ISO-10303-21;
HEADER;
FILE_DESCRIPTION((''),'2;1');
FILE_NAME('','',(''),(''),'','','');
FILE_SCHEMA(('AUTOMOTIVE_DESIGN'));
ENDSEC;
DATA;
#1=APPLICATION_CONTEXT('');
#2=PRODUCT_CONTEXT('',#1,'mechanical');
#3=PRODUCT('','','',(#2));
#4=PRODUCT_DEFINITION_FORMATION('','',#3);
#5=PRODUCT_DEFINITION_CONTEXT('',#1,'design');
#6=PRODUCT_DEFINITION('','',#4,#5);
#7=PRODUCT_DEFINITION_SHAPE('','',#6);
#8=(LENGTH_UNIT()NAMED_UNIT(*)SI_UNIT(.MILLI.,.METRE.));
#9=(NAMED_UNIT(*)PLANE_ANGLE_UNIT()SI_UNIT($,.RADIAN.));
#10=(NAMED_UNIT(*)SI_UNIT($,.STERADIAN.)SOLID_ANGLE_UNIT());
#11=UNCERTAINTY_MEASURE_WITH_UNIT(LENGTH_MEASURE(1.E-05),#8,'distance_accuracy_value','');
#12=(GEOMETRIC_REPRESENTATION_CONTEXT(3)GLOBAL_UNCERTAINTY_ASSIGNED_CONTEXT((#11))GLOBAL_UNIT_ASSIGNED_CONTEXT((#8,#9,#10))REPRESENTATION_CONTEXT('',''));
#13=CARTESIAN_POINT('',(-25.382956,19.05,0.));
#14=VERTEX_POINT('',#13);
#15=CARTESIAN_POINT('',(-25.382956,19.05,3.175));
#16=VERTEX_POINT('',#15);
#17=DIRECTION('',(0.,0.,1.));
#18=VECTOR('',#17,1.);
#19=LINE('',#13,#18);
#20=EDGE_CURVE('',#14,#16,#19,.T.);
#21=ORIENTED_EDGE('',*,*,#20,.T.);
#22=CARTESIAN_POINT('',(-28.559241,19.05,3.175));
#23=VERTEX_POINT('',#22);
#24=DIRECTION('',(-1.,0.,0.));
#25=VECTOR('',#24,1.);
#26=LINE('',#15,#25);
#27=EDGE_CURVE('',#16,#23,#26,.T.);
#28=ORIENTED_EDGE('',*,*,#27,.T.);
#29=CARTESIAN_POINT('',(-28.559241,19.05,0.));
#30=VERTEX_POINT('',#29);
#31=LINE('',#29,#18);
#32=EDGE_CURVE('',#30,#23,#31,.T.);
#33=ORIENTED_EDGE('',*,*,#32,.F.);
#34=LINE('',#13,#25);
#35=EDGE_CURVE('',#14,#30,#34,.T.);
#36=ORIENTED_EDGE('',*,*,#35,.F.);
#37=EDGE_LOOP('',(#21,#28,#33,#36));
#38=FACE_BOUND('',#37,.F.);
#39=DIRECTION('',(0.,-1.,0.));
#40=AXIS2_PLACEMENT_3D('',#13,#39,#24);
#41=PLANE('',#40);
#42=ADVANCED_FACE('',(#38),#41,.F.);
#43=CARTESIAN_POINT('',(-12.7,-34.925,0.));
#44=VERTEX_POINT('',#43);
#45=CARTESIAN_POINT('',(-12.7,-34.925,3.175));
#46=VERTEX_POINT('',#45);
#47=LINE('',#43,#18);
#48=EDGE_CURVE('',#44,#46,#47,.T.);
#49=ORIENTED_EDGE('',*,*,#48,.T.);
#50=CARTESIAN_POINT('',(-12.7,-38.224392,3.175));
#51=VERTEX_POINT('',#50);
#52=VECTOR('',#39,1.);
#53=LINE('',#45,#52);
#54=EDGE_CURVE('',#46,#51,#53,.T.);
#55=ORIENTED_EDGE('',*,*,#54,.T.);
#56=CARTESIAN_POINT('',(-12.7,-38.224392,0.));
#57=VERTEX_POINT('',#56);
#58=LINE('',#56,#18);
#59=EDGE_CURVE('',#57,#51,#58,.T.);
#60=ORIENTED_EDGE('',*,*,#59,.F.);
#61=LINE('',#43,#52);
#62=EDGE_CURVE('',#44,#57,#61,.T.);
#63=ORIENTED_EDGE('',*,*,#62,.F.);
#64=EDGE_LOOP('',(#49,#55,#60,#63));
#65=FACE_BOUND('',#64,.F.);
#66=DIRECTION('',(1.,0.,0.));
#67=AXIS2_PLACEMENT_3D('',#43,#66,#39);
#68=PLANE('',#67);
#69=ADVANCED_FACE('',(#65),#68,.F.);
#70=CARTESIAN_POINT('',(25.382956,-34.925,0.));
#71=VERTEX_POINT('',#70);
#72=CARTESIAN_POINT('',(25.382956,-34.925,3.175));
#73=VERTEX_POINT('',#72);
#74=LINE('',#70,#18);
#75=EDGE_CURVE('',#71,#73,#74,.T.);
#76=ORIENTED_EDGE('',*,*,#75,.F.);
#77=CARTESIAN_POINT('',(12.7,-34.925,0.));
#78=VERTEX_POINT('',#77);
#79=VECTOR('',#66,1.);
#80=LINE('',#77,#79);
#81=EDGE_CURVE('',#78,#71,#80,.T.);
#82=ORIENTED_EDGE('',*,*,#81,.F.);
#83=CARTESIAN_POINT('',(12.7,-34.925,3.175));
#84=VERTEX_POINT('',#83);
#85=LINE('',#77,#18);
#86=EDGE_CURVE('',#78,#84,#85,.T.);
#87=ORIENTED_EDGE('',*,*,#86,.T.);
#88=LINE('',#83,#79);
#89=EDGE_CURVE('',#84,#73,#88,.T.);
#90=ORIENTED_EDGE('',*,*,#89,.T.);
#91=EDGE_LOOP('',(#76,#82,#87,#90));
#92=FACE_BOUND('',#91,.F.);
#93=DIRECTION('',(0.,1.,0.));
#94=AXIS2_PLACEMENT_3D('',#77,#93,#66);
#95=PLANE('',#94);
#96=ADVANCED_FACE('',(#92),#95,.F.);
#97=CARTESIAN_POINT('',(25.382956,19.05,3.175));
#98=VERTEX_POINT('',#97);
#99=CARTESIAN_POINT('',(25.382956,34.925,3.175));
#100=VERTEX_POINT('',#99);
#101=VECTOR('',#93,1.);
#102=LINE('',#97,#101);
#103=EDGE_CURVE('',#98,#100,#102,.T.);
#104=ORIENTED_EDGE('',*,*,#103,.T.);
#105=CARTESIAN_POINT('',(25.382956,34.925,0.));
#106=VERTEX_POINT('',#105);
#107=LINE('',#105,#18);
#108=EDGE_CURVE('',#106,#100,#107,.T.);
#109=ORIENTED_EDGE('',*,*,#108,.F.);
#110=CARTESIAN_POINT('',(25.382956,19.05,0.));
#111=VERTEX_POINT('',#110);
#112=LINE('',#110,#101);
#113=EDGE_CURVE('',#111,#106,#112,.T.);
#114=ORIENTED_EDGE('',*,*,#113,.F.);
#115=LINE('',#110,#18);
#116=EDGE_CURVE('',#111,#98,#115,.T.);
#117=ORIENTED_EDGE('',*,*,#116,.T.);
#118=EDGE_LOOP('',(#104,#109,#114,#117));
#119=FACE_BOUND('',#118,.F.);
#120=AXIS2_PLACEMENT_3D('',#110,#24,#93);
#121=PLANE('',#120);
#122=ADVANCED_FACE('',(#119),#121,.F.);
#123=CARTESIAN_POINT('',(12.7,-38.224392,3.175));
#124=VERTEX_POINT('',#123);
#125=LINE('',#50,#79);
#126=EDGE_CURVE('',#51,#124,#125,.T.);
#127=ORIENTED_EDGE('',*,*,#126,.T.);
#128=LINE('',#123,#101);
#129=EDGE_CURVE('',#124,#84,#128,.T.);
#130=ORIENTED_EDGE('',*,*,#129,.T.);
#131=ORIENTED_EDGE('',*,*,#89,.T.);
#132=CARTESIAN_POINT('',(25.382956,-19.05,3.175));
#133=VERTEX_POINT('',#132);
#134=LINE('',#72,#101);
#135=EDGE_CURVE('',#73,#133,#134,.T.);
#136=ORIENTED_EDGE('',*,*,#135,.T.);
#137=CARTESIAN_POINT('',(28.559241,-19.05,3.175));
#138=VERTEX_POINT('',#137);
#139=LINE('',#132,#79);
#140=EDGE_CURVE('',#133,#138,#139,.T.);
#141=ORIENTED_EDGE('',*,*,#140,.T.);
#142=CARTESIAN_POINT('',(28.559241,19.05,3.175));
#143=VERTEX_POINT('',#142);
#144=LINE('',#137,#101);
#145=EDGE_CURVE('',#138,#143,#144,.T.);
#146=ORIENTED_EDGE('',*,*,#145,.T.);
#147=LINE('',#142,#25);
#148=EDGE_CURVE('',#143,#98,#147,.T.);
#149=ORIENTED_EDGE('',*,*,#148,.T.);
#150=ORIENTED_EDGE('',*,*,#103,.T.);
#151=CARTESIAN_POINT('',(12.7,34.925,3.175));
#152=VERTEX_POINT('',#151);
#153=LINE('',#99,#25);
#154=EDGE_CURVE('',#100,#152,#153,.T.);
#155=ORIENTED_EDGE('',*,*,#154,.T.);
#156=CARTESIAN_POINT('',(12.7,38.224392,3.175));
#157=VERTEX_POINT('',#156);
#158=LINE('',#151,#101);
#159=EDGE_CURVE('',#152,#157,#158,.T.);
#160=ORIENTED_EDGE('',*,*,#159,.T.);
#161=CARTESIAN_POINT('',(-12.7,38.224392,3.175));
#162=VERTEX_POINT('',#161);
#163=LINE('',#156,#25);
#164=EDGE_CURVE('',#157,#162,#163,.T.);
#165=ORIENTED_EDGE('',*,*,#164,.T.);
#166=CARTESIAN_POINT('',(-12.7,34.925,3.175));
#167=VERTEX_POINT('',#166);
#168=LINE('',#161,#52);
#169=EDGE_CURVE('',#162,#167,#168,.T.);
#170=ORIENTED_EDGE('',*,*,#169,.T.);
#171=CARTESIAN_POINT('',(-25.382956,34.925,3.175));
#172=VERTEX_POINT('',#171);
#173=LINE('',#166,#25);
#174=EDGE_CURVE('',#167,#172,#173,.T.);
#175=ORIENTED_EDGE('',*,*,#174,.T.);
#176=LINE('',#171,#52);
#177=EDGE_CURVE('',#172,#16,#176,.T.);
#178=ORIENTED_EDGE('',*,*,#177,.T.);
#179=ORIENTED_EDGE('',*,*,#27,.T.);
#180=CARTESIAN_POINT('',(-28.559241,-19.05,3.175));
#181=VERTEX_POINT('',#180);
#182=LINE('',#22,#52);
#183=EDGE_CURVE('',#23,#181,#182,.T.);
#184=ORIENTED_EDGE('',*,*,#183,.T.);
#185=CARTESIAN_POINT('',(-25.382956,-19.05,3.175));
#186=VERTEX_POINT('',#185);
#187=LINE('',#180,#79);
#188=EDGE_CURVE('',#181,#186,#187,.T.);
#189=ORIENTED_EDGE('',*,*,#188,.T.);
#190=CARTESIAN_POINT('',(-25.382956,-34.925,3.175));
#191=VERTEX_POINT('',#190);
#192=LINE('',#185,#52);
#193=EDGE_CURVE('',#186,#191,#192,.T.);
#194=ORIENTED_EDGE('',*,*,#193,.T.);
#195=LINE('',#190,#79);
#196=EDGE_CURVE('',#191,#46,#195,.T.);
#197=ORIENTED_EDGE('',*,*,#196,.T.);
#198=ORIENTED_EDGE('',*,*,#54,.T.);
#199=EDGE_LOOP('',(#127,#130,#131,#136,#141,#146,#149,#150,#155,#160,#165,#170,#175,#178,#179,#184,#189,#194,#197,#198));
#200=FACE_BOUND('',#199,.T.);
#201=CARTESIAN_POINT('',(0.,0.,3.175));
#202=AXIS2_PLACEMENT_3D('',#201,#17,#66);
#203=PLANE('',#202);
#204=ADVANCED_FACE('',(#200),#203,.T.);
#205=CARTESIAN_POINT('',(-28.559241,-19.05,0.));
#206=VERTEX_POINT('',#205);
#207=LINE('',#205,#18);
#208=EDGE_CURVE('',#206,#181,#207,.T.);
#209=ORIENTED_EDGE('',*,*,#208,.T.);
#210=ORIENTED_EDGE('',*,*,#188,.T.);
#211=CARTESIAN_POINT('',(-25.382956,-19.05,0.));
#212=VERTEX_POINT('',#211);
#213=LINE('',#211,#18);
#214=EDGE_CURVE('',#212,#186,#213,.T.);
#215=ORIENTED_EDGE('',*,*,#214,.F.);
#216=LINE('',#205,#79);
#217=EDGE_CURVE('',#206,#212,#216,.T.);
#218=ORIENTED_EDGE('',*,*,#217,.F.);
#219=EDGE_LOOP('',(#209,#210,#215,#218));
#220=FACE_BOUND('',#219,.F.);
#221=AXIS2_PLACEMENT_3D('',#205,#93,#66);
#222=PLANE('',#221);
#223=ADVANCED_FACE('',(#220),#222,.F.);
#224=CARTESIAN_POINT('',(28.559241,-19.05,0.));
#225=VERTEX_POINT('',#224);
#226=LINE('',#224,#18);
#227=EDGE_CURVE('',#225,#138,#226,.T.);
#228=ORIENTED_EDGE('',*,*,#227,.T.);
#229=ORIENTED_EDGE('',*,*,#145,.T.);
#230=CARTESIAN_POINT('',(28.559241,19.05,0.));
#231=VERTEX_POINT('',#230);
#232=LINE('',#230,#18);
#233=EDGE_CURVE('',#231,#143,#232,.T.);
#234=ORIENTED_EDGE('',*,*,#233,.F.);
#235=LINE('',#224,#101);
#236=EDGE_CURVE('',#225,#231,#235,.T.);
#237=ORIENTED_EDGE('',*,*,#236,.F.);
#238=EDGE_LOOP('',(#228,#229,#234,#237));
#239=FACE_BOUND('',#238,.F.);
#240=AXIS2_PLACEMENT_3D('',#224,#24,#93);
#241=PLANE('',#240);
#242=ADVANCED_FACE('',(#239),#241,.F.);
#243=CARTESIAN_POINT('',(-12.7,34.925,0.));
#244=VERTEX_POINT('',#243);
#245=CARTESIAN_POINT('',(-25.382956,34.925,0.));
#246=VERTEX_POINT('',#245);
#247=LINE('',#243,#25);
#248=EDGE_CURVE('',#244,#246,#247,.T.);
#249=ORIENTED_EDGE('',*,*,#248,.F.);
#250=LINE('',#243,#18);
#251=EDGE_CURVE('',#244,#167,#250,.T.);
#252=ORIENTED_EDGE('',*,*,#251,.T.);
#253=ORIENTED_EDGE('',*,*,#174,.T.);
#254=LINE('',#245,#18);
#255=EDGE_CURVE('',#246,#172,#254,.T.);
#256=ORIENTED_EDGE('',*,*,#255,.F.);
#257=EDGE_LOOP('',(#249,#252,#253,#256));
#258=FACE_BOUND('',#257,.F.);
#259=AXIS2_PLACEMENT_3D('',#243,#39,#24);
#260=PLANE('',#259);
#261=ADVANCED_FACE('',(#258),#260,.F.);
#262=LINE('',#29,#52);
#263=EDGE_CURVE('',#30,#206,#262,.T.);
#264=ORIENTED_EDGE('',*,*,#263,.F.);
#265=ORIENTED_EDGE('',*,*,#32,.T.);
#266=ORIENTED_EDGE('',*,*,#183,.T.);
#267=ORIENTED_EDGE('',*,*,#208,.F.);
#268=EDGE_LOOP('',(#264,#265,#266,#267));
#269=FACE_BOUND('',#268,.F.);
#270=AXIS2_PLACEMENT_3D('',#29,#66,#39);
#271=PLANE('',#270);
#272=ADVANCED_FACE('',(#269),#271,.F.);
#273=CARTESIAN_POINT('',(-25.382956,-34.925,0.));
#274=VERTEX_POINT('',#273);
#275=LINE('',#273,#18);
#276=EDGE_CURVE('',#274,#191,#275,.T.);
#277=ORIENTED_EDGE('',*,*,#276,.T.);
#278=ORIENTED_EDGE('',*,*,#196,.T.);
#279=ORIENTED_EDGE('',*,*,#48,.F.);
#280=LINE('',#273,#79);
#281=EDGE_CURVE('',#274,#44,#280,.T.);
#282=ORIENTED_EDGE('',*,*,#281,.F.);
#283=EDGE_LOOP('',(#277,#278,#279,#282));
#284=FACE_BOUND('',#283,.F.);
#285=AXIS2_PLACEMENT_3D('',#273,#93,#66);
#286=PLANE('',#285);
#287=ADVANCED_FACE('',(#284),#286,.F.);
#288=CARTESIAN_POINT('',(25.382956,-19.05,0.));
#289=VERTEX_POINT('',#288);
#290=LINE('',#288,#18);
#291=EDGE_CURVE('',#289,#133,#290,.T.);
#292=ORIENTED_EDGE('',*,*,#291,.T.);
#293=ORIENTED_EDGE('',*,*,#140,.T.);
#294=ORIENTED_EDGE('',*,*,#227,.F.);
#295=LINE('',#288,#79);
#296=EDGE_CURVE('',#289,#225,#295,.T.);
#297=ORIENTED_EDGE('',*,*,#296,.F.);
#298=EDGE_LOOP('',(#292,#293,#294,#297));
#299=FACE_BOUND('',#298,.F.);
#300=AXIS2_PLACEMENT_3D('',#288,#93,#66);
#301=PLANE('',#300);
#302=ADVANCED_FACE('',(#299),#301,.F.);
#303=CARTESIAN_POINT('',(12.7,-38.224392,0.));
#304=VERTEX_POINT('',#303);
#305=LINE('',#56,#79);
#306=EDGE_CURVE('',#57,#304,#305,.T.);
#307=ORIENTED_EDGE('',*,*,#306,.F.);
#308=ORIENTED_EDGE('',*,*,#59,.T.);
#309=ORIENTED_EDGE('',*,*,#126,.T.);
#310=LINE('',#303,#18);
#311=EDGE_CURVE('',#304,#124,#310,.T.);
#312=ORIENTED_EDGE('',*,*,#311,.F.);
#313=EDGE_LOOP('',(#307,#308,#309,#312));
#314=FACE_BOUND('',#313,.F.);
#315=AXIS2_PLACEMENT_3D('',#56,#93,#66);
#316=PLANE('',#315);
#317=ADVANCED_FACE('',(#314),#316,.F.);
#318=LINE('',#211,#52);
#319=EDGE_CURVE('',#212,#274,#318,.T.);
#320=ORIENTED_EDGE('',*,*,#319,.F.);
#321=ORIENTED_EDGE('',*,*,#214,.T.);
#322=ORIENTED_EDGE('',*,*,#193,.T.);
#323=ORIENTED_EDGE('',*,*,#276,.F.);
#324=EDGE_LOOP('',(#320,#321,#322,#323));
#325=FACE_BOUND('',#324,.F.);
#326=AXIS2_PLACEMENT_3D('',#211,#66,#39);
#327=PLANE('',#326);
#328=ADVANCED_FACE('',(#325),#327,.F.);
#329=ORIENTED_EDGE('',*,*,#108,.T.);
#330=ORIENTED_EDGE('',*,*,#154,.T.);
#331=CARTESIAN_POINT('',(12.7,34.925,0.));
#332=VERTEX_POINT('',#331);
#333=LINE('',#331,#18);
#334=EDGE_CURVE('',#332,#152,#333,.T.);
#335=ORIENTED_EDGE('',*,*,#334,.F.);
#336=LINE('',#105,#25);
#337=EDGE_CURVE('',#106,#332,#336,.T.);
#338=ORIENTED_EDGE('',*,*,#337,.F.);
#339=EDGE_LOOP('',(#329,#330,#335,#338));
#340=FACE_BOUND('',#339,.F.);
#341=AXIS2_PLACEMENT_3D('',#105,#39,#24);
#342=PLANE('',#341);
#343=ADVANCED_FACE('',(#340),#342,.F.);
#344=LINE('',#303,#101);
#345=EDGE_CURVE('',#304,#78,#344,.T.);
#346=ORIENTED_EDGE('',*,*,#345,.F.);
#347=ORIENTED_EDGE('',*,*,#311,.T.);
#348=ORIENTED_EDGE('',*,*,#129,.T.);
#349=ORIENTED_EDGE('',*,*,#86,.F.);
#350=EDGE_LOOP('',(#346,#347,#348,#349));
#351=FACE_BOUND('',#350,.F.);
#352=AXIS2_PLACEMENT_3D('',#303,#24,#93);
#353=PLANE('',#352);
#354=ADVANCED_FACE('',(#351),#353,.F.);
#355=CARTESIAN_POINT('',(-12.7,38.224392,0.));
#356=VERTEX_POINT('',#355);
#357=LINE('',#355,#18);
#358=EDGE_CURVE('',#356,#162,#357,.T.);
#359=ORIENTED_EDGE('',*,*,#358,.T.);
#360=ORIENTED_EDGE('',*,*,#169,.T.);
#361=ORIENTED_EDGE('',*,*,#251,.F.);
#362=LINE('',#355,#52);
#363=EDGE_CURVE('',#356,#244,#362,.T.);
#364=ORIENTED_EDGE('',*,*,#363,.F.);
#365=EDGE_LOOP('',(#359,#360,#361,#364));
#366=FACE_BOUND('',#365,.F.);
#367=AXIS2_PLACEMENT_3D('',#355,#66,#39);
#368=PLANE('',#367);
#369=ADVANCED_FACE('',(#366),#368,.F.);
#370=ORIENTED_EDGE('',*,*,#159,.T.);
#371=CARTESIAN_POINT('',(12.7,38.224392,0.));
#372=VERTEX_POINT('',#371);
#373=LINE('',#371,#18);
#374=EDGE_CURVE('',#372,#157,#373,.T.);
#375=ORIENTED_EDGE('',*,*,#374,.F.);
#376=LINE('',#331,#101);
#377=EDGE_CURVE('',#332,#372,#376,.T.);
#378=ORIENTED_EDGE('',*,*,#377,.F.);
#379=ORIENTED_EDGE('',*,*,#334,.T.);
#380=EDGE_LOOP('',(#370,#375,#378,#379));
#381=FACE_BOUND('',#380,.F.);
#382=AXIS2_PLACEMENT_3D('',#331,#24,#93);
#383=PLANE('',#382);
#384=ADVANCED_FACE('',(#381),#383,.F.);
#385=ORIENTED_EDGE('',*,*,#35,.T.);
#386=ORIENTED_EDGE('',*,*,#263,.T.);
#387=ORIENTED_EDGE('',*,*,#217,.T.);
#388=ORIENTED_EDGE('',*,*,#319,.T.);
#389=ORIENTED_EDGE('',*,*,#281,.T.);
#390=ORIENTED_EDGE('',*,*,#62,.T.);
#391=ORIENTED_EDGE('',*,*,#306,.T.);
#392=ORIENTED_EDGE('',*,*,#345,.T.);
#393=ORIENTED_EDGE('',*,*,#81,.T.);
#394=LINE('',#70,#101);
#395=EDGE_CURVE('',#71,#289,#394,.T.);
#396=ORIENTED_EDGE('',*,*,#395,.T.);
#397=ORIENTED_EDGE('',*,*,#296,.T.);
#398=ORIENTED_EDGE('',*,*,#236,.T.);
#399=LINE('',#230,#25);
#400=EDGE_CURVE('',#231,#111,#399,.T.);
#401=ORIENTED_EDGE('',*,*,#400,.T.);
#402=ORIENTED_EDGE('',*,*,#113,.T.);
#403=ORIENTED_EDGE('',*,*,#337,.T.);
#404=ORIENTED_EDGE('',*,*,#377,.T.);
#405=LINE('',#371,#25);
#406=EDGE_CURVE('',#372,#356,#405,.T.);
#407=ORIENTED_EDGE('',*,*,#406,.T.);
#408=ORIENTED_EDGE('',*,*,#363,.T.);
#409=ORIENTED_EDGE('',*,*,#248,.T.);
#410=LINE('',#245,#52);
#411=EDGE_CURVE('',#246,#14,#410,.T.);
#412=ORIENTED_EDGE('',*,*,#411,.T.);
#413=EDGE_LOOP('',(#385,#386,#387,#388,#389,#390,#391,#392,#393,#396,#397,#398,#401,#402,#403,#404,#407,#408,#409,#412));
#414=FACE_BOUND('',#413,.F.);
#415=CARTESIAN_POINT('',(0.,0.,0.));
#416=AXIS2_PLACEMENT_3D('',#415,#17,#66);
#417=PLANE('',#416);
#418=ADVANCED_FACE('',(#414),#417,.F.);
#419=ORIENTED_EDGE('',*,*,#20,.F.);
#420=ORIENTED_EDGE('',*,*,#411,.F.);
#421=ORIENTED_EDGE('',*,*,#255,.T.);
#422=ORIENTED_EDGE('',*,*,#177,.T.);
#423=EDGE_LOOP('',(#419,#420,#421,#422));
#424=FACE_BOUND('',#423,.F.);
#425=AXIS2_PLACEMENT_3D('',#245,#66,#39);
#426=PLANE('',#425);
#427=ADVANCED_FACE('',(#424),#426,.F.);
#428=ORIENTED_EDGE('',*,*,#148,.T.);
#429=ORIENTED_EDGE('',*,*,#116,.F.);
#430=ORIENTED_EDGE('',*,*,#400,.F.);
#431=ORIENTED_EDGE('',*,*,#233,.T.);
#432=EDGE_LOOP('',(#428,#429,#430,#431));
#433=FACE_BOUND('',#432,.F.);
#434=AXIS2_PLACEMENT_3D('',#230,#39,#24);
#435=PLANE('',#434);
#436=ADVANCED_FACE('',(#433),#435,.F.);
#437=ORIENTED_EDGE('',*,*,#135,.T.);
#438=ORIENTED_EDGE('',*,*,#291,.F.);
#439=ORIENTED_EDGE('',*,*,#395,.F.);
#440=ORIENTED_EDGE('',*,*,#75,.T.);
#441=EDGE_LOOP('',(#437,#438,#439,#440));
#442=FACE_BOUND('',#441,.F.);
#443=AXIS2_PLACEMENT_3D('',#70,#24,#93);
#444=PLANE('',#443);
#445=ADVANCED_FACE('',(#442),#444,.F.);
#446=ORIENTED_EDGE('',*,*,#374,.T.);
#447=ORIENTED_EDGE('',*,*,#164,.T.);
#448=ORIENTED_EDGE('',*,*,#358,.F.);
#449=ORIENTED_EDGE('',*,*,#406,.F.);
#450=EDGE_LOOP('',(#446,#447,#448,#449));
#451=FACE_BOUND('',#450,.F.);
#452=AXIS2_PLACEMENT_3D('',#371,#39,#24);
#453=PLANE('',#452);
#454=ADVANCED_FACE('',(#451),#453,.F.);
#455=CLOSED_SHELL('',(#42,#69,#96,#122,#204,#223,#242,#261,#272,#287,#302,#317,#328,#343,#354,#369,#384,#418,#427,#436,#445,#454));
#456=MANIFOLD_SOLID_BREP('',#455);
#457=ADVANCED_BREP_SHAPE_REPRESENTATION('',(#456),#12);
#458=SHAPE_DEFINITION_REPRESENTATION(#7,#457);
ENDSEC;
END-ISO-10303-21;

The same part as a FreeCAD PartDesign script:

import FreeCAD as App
import Part
import Sketcher

V = App.Vector
Q = App.Units.Quantity

doc = App.newDocument("Part")
body = doc.addObject("PartDesign::Body", "Body")

# Sketch on XY plane
sketch1 = doc.addObject("Sketcher::SketchObject", "Sketch")
body.addObject(sketch1)
sketch1.AttachmentSupport = (doc.XY_Plane, [""])
sketch1.MapMode = "FlatFace"
sketch1.addGeometry([
    Part.LineSegment(V(25.382956, 19.05, 0), V(25.382956, 34.925, 0)),  # 0
    Part.LineSegment(V(25.382956, 34.925, 0), V(12.7, 34.925, 0)),  # 1
    Part.LineSegment(V(12.7, 34.925, 0), V(12.7, 38.224392, 0)),  # 2
    Part.LineSegment(V(12.7, 38.224392, 0), V(-12.7, 38.224392, 0)),  # 3
    Part.LineSegment(V(-12.7, 38.224392, 0), V(-12.7, 34.925, 0)),  # 4
    Part.LineSegment(V(-12.7, 34.925, 0), V(-25.382956, 34.925, 0)),  # 5
    Part.LineSegment(V(-25.382956, 34.925, 0), V(-25.382956, 19.05, 0)),  # 6
    Part.LineSegment(V(-25.382956, 19.05, 0), V(-28.559241, 19.05, 0)),  # 7
    Part.LineSegment(V(-28.559241, 19.05, 0), V(-28.559241, -19.05, 0)),  # 8
    Part.LineSegment(V(-28.559241, -19.05, 0), V(-25.382956, -19.05, 0)),  # 9
    Part.LineSegment(V(-25.382956, -19.05, 0), V(-25.382956, -34.925, 0)),  # 10
    Part.LineSegment(V(-25.382956, -34.925, 0), V(-12.7, -34.925, 0)),  # 11
    Part.LineSegment(V(-12.7, -34.925, 0), V(-12.7, -38.224392, 0)),  # 12
    Part.LineSegment(V(-12.7, -38.224392, 0), V(12.7, -38.224392, 0)),  # 13
    Part.LineSegment(V(12.7, -38.224392, 0), V(12.7, -34.925, 0)),  # 14
    Part.LineSegment(V(12.7, -34.925, 0), V(25.382956, -34.925, 0)),  # 15
    Part.LineSegment(V(25.382956, -34.925, 0), V(25.382956, -19.05, 0)),  # 16
    Part.LineSegment(V(25.382956, -19.05, 0), V(28.559241, -19.05, 0)),  # 17
    Part.LineSegment(V(28.559241, -19.05, 0), V(28.559241, 19.05, 0)),  # 18
    Part.LineSegment(V(28.559241, 19.05, 0), V(25.382956, 19.05, 0)),  # 19
], False)
sketch1.addConstraint([
    Sketcher.Constraint("Coincident", 0, 2, 1, 1),
    Sketcher.Constraint("Coincident", 1, 2, 2, 1),
    Sketcher.Constraint("Coincident", 2, 2, 3, 1),
    Sketcher.Constraint("Coincident", 3, 2, 4, 1),
    Sketcher.Constraint("Coincident", 4, 2, 5, 1),
    Sketcher.Constraint("Coincident", 5, 2, 6, 1),
    Sketcher.Constraint("Coincident", 6, 2, 7, 1),
    Sketcher.Constraint("Coincident", 7, 2, 8, 1),
    Sketcher.Constraint("Coincident", 8, 2, 9, 1),
    Sketcher.Constraint("Coincident", 9, 2, 10, 1),
    Sketcher.Constraint("Coincident", 10, 2, 11, 1),
    Sketcher.Constraint("Coincident", 11, 2, 12, 1),
    Sketcher.Constraint("Coincident", 12, 2, 13, 1),
    Sketcher.Constraint("Coincident", 13, 2, 14, 1),
    Sketcher.Constraint("Coincident", 14, 2, 15, 1),
    Sketcher.Constraint("Coincident", 15, 2, 16, 1),
    Sketcher.Constraint("Coincident", 16, 2, 17, 1),
    Sketcher.Constraint("Coincident", 17, 2, 18, 1),
    Sketcher.Constraint("Coincident", 18, 2, 19, 1),
    Sketcher.Constraint("Coincident", 19, 2, 0, 1),
    Sketcher.Constraint("Vertical", 0),
    Sketcher.Constraint("Horizontal", 1),
    Sketcher.Constraint("Vertical", 2),
    Sketcher.Constraint("Horizontal", 3),
    Sketcher.Constraint("Vertical", 4),
    Sketcher.Constraint("Horizontal", 5),
    Sketcher.Constraint("Vertical", 6),
    Sketcher.Constraint("Horizontal", 7),
    Sketcher.Constraint("Vertical", 8),
    Sketcher.Constraint("Horizontal", 9),
    Sketcher.Constraint("Vertical", 10),
    Sketcher.Constraint("Horizontal", 11),
    Sketcher.Constraint("Vertical", 12),
    Sketcher.Constraint("Horizontal", 13),
    Sketcher.Constraint("Vertical", 14),
    Sketcher.Constraint("Horizontal", 15),
    Sketcher.Constraint("Vertical", 16),
    Sketcher.Constraint("Horizontal", 17),
    Sketcher.Constraint("Vertical", 18),
    Sketcher.Constraint("Horizontal", 19),
    Sketcher.Constraint("Symmetric", 0, 2, 10, 2, -1, 1),
    Sketcher.Constraint("Symmetric", 2, 2, 12, 2, -1, 1),
    Sketcher.Constraint("Symmetric", 4, 2, 14, 2, -1, 1),
    Sketcher.Constraint("Symmetric", 6, 2, 16, 2, -1, 1),
    Sketcher.Constraint("Symmetric", 8, 2, 18, 2, -1, 1),
    Sketcher.Constraint("Symmetric", 1, 2, 4, 2, -2),
    Sketcher.Constraint("Symmetric", 9, 2, 16, 2, -2),
    Sketcher.Constraint("DistanceX", 3, 2, 3, 1, Q("1 in")),
    Sketcher.Constraint("DistanceY", 8, 2, 8, 1, Q("1.5 in")),
    Sketcher.Constraint("DistanceY", 0, 1, 0, 2, Q("0.625 in")),
    Sketcher.Constraint("DistanceX", 1, 2, 1, 1, 12.682956),
    Sketcher.Constraint("DistanceX", 7, 2, 7, 1, 3.176285),
    Sketcher.Constraint("DistanceY", 2, 1, 2, 2, 3.299392),
])
pad1 = doc.addObject("PartDesign::Pad", "Pad")
body.addObject(pad1)
pad1.Profile = sketch1
pad1.Length = Q("0.125 in")

doc.recompute()
